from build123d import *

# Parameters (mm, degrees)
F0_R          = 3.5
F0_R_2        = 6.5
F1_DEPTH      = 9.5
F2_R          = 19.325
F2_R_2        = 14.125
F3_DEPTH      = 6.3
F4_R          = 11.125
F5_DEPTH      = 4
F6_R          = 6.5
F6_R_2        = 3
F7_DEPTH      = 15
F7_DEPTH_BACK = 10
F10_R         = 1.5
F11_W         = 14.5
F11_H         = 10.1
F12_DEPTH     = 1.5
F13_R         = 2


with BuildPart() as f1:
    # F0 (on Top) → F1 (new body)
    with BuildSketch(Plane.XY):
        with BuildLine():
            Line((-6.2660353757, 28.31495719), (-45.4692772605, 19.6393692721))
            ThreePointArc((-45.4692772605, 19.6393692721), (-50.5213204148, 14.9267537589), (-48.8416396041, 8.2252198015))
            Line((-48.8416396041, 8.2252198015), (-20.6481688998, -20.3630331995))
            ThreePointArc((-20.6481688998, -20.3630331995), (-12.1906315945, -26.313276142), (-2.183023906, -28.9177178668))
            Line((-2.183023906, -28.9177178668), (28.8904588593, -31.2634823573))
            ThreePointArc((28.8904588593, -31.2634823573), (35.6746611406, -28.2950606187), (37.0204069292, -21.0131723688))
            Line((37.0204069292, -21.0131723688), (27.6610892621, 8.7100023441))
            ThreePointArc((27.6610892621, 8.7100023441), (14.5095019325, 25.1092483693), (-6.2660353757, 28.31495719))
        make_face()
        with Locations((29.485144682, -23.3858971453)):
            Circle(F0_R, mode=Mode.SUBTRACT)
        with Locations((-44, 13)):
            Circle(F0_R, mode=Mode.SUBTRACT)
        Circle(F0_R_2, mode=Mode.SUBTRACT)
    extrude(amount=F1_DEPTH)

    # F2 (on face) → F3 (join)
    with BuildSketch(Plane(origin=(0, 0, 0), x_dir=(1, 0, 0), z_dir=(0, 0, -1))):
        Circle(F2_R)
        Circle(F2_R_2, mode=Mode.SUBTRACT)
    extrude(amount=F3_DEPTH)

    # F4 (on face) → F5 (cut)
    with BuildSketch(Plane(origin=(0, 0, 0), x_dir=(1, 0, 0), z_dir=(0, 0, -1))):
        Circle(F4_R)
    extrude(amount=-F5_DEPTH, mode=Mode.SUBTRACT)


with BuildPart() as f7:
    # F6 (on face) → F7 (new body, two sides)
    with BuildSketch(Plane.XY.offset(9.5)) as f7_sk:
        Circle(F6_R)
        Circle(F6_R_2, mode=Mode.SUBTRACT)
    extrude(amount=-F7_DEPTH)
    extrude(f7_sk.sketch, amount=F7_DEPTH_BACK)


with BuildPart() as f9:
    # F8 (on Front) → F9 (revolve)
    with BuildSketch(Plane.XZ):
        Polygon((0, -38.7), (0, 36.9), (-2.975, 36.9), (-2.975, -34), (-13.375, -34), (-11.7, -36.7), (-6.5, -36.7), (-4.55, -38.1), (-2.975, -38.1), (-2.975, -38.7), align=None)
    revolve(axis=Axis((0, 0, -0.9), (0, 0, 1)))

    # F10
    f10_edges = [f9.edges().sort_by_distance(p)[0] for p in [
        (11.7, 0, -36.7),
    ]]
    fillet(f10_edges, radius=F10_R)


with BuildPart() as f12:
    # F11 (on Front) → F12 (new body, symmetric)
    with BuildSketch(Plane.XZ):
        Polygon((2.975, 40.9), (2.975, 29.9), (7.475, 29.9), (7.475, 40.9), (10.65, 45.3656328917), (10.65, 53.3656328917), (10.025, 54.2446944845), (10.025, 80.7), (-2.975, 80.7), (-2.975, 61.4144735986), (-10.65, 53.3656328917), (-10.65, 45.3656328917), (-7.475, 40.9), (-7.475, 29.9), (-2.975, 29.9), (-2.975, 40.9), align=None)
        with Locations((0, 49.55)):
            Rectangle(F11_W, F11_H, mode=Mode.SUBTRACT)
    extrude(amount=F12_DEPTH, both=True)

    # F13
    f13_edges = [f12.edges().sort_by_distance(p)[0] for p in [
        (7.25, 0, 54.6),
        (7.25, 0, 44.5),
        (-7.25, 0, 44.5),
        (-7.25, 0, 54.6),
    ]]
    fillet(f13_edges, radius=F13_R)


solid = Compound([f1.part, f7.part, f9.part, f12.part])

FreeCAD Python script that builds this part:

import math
import FreeCAD as App
import Part
import Sketcher

V = App.Vector
Q = App.Units.Quantity


def edges_at(feature, points):
    """Names of the edges that pass closest to the given points."""
    edges = feature.Shape.Edges
    near = lambda p: min(range(len(edges)), key=lambda i: edges[i].distToShape(Part.Vertex(*p))[0])
    return sorted({f"Edge{near(p) + 1}" for p in points})


def add_polygon(sketch, points):
    """Adds a closed chain of lines whose ends are joined by coincident constraints."""
    first, n = sketch.GeometryCount, len(points)
    for a, b in zip(points, points[1:] + points[:1]):
        sketch.addGeometry(Part.LineSegment(App.Vector(*a, 0), App.Vector(*b, 0)), False)
    for i in range(n):
        sketch.addConstraint(Sketcher.Constraint("Coincident", first + i, 2, first + (i + 1) % n, 1))

doc = App.newDocument("Part")
params = doc.addObject("Spreadsheet::Sheet", "Params")
for row, (alias, value) in enumerate([
    ("sketch1_diameter", "7 mm"),
    ("sketch1_diameter2", "13 mm"),
    ("sketch1_radius", "29 mm"),
    ("sketch1_radius2", "6.8 mm"),
    ("sketch1_radius3", "7.9 mm"),
    ("pad1_length", "9.5 mm"),
    ("sketch2_diameter", "38.65 mm"),
    ("sketch2_diameter2", "28.25 mm"),
    ("pad2_length", "6.3 mm"),
    ("sketch3_diameter", "22.25 mm"),
    ("pocket1_length", "4 mm"),
    ("sketch4_diameter", "13 mm"),
    ("sketch4_diameter2", "6 mm"),
    ("pad3_length", "15 mm"),
    ("pad3_length2", "10 mm"),
    ("sketch5_width", "10.4 mm"),
    ("sketch5_width2", "5.2 mm"),
    ("sketch5_height", "75.6 mm"),
    ("sketch5_height2", "70.9 mm"),
    ("sketch5_height3", "0.6 mm"),
    ("revolution_angle", "360 deg"),
    ("fillet_radius", "1.5 mm"),
    ("sketch6_width", "13 mm"),
    ("sketch6_height", "11 mm"),
    ("sketch6_height2", "8 mm"),
    ("sketch6_width2", "4.5 mm"),
    ("sketch6_width3", "14.5 mm"),
    ("pad4_length", "3 mm"),
    ("fillet2_radius", "2 mm"),
], start=1):
    params.set(f"A{row}", alias)
    params.set(f"B{row}", "=" + value)
    params.setAlias(f"B{row}", alias)

body = doc.addObject("PartDesign::Body", "Body")

# Sketch on XY plane
sketch1 = body.newObject("Sketcher::SketchObject", "Sketch")
sketch1.AttachmentSupport = (doc.getObject("XY_Plane"), [""])
sketch1.MapMode = "FlatFace"
sketch1.addGeometry(Part.LineSegment(V(-6.3, 28.3, 0), V(-45.5, 19.6, 0)), False)
sketch1.addGeometry(Part.ArcOfCircle(Part.Circle(V(-44, 13, 0), V(0, 0, 1), 6.8), math.radians(102), math.radians(225)), False)
sketch1.addGeometry(Part.LineSegment(V(-48.8, 8.2, 0), V(-20.6, -20.4, 0)), False)
sketch1.addGeometry(Part.ArcOfCircle(Part.Circle(V(0, 0, 0), V(0, 0, 1), 29), math.radians(-135), math.radians(-94)), False)
sketch1.addGeometry(Part.LineSegment(V(-2.2, -28.9, 0), V(28.9, -31.3, 0)), False)
sketch1.addGeometry(Part.ArcOfCircle(Part.Circle(V(29.5, -23.4, 0), V(0, 0, 1), 7.9), math.radians(-94), math.radians(17)), False)
sketch1.addGeometry(Part.LineSegment(V(37, -21, 0), V(27.7, 8.7, 0)), False)
sketch1.addGeometry(Part.ArcOfCircle(Part.Circle(V(0, 0, 0), V(0, 0, 1), 29), math.radians(17), math.radians(102)), False)
sketch1.addGeometry(Part.Circle(V(29.5, -23.4, 0), V(0, 0, 1), 3.5), False)
sketch1.addGeometry(Part.Circle(V(-44, 13, 0), V(0, 0, 1), 3.5), False)
sketch1.addGeometry(Part.Circle(V(0, 0, 0), V(0, 0, 1), 6.5), False)
sketch1.addConstraint(Sketcher.Constraint("Tangent", 0, 2, 1, 1))
sketch1.addConstraint(Sketcher.Constraint("Tangent", 1, 2, 2, 1))
sketch1.addConstraint(Sketcher.Constraint("Tangent", 2, 2, 3, 1))
sketch1.addConstraint(Sketcher.Constraint("Tangent", 3, 2, 4, 1))
sketch1.addConstraint(Sketcher.Constraint("Tangent", 4, 2, 5, 1))
sketch1.addConstraint(Sketcher.Constraint("Tangent", 5, 2, 6, 1))
sketch1.addConstraint(Sketcher.Constraint("Tangent", 6, 2, 7, 1))
sketch1.addConstraint(Sketcher.Constraint("Tangent", 7, 2, 0, 1))
sketch1.addConstraint(Sketcher.Constraint("Coincident", 3, 3, -1, 1))
sketch1.addConstraint(Sketcher.Constraint("Coincident", 7, 3, -1, 1))
sketch1.addConstraint(Sketcher.Constraint("Coincident", 10, 3, -1, 1))
sketch1.addConstraint(Sketcher.Constraint("Coincident", 8, 3, 5, 3))
sketch1.addConstraint(Sketcher.Constraint("Coincident", 9, 3, 1, 3))
sketch1.addConstraint(Sketcher.Constraint("Equal", 3, 7))
sketch1.addConstraint(Sketcher.Constraint("Equal", 8, 9))
sketch1.addConstraint(Sketcher.Constraint("Diameter", 8, Q("7 mm")))
sketch1.addConstraint(Sketcher.Constraint("Diameter", 10, Q("13 mm")))
sketch1.addConstraint(Sketcher.Constraint("Radius", 3, Q("29 mm")))
sketch1.addConstraint(Sketcher.Constraint("Radius", 1, Q("6.8 mm")))
sketch1.addConstraint(Sketcher.Constraint("Radius", 5, Q("7.9 mm")))
sketch1.addConstraint(Sketcher.Constraint("DistanceX", 1, 3, -1, 1, Q("44 mm")))
sketch1.addConstraint(Sketcher.Constraint("DistanceY", -1, 1, 1, 3, Q("13 mm")))
sketch1.addConstraint(Sketcher.Constraint("Distance", 4, Q("31.161899 mm")))
sketch1.addConstraint(Sketcher.Constraint("DistanceY", 5, 3, 6, 2, Q("32.095899 mm")))
sketch1.setExpression("Constraints[15]", "Params.sketch1_diameter")
sketch1.setExpression("Constraints[16]", "Params.sketch1_diameter2")
sketch1.setExpression("Constraints[17]", "Params.sketch1_radius")
sketch1.setExpression("Constraints[18]", "Params.sketch1_radius2")
sketch1.setExpression("Constraints[19]", "Params.sketch1_radius3")
pad1 = body.newObject("PartDesign::Pad", "Pad")
pad1.Profile = sketch1
pad1.setExpression("Length", "Params.pad1_length")

# Sketch on XY plane
sketch2 = body.newObject("Sketcher::SketchObject", "Sketch001")
sketch2.AttachmentSupport = (doc.getObject("XY_Plane"), [""])
sketch2.MapMode = "FlatFace"
sketch2.addGeometry(Part.Circle(V(0, 0, 0), V(0, 0, 1), 19), False)
sketch2.addGeometry(Part.Circle(V(0, 0, 0), V(0, 0, 1), 14), False)
sketch2.addConstraint(Sketcher.Constraint("Coincident", 0, 3, -1, 1))
sketch2.addConstraint(Sketcher.Constraint("Coincident", 1, 3, -1, 1))
sketch2.addConstraint(Sketcher.Constraint("Diameter", 0, Q("38.65 mm")))
sketch2.addConstraint(Sketcher.Constraint("Diameter", 1, Q("28.25 mm")))
sketch2.setExpression("Constraints[2]", "Params.sketch2_diameter")
sketch2.setExpression("Constraints[3]", "Params.sketch2_diameter2")
pad2 = body.newObject("PartDesign::Pad", "Pad001")
pad2.Profile = sketch2
pad2.setExpression("Length", "Params.pad2_length")
pad2.Reversed = True

# Sketch on XY plane
sketch3 = body.newObject("Sketcher::SketchObject", "Sketch002")
sketch3.AttachmentSupport = (doc.getObject("XY_Plane"), [""])
sketch3.MapMode = "FlatFace"
sketch3.addGeometry(Part.Circle(V(0, 0, 0), V(0, 0, 1), 11), False)
sketch3.addConstraint(Sketcher.Constraint("Coincident", 0, 3, -1, 1))
sketch3.addConstraint(Sketcher.Constraint("Diameter", 0, Q("22.25 mm")))
sketch3.setExpression("Constraints[1]", "Params.sketch3_diameter")
pocket1 = body.newObject("PartDesign::Pocket", "Pocket")
pocket1.Profile = sketch3
pocket1.setExpression("Length", "Params.pocket1_length")
pocket1.Reversed = True
body2 = doc.addObject("PartDesign::Body", "Body001")

# Sketch on XY plane
sketch4 = body2.newObject("Sketcher::SketchObject", "Sketch003")
sketch4.AttachmentSupport = (doc.getObject("XY_Plane001"), [""])
sketch4.MapMode = "FlatFace"
sketch4.AttachmentOffset = App.Placement(V(0, 0, 9.5), App.Rotation())
sketch4.addGeometry(Part.Circle(V(0, 0, 0), V(0, 0, 1), 6.5), False)
sketch4.addGeometry(Part.Circle(V(0, 0, 0), V(0, 0, 1), 3), False)
sketch4.addConstraint(Sketcher.Constraint("Coincident", 0, 3, -1, 1))
sketch4.addConstraint(Sketcher.Constraint("Coincident", 1, 3, -1, 1))
sketch4.addConstraint(Sketcher.Constraint("Diameter", 0, Q("13 mm")))
sketch4.addConstraint(Sketcher.Constraint("Diameter", 1, Q("6 mm")))
sketch4.setExpression("Constraints[2]", "Params.sketch4_diameter")
sketch4.setExpression("Constraints[3]", "Params.sketch4_diameter2")
pad3 = body2.newObject("PartDesign::Pad", "Pad002")
pad3.Profile = sketch4
pad3.Type = "TwoLengths"
pad3.setExpression("Length", "Params.pad3_length")
pad3.setExpression("Length2", "Params.pad3_length2")
pad3.Reversed = True
body3 = doc.addObject("PartDesign::Body", "Body002")

# Sketch on XZ plane
sketch5 = body3.newObject("Sketcher::SketchObject", "Sketch004")
sketch5.AttachmentSupport = (doc.getObject("XZ_Plane002"), [""])
sketch5.MapMode = "FlatFace"
add_polygon(sketch5, [(0, -38.7), (0, 36.9), (-3, 36.9), (-3, -34), (-13.4, -34), (-11.7, -36.7), (-6.5, -36.7), (-4.5, -38.1), (-3, -38.1), (-3, -38.7)])  # lines 0-9
sketch5.addConstraint(Sketcher.Constraint("Vertical", 0))
sketch5.addConstraint(Sketcher.Constraint("Horizontal", 1))
sketch5.addConstraint(Sketcher.Constraint("Vertical", 2))
sketch5.addConstraint(Sketcher.Constraint("Horizontal", 3))
sketch5.addConstraint(Sketcher.Constraint("Horizontal", 5))
sketch5.addConstraint(Sketcher.Constraint("Horizontal", 7))
sketch5.addConstraint(Sketcher.Constraint("Vertical", 8))
sketch5.addConstraint(Sketcher.Constraint("Horizontal", 9))
sketch5.addConstraint(Sketcher.Constraint("PointOnObject", 0, 2, -2))
sketch5.addConstraint(Sketcher.Constraint("Vertical", 2, 2, 7, 2))
sketch5.addConstraint(Sketcher.Constraint("DistanceX", 3, 2, 3, 1, Q("10.4 mm")))
sketch5.addConstraint(Sketcher.Constraint("DistanceX", 5, 1, 5, 2, Q("5.2 mm")))
sketch5.addConstraint(Sketcher.Constraint("DistanceY", 0, 1, 0, 2, Q("75.6 mm")))
sketch5.addConstraint(Sketcher.Constraint("DistanceY", 2, 2, 2, 1, Q("70.9 mm")))
sketch5.addConstraint(Sketcher.Constraint("DistanceY", 8, 2, 8, 1, Q("0.6 mm")))
sketch5.addConstraint(Sketcher.Constraint("DistanceY", 2, 2, -1, 1, Q("34 mm")))
sketch5.addConstraint(Sketcher.Constraint("DistanceY", 8, 2, 5, 2, Q("2 mm")))
sketch5.addConstraint(Sketcher.Constraint("DistanceX", 4, 2, -1, 1, Q("11.7 mm")))
sketch5.addConstraint(Sketcher.Constraint("DistanceX", 1, 2, 1, 1, Q("2.975 mm")))
sketch5.addConstraint(Sketcher.Constraint("DistanceX", 7, 1, 7, 2, Q("1.575 mm")))
sketch5.setExpression("Constraints[20]", "Params.sketch5_width")
sketch5.setExpression("Constraints[21]", "Params.sketch5_width2")
sketch5.setExpression("Constraints[22]", "Params.sketch5_height")
sketch5.setExpression("Constraints[23]", "Params.sketch5_height2")
sketch5.setExpression("Constraints[24]", "Params.sketch5_height3")
revolution = body3.newObject("PartDesign::Revolution", "Revolution")
revolution.Profile = sketch5
revolution.ReferenceAxis = (sketch5, ["V_Axis"])
revolution.setExpression("Angle", "Params.revolution_angle")
doc.recompute()

fillet = body3.newObject("PartDesign::Fillet", "Fillet")
fillet.Base = (revolution, edges_at(revolution, [(11.7, 0, -36.7)]))
fillet.setExpression("Radius", "Params.fillet_radius")
body4 = doc.addObject("PartDesign::Body", "Body003")

# Sketch on XZ plane
sketch6 = body4.newObject("Sketcher::SketchObject", "Sketch005")
sketch6.AttachmentSupport = (doc.getObject("XZ_Plane003"), [""])
sketch6.MapMode = "FlatFace"
add_polygon(sketch6, [(3, 40.9), (3, 29.9), (7.5, 29.9), (7.5, 40.9), (10.7, 45.4), (10.7, 53.4), (10, 54.2), (10, 80.7), (-3, 80.7), (-3, 61.4), (-10.7, 53.4), (-10.7, 45.4), (-7.5, 40.9), (-7.5, 29.9), (-3, 29.9), (-3, 40.9)])  # lines 0-15
add_polygon(sketch6, [(7.2, 44.5), (-7.2, 44.5), (-7.2, 54.6), (7.2, 54.6)])  # lines 16-19
sketch6.addConstraint(Sketcher.Constraint("Vertical", 0))
sketch6.addConstraint(Sketcher.Constraint("Horizontal", 1))
sketch6.addConstraint(Sketcher.Constraint("Vertical", 2))
sketch6.addConstraint(Sketcher.Constraint("Vertical", 4))
sketch6.addConstraint(Sketcher.Constraint("Vertical", 6))
sketch6.addConstraint(Sketcher.Constraint("Horizontal", 7))
sketch6.addConstraint(Sketcher.Constraint("Vertical", 8))
sketch6.addConstraint(Sketcher.Constraint("Vertical", 10))
sketch6.addConstraint(Sketcher.Constraint("Vertical", 12))
sketch6.addConstraint(Sketcher.Constraint("Horizontal", 13))
sketch6.addConstraint(Sketcher.Constraint("Vertical", 14))
sketch6.addConstraint(Sketcher.Constraint("Horizontal", 15))
sketch6.addConstraint(Sketcher.Constraint("Horizontal", 16))
sketch6.addConstraint(Sketcher.Constraint("Vertical", 17))
sketch6.addConstraint(Sketcher.Constraint("Horizontal", 18))
sketch6.addConstraint(Sketcher.Constraint("Vertical", 19))
sketch6.addConstraint(Sketcher.Constraint("Symmetric", 4, 2, 9, 2, -2))
sketch6.addConstraint(Sketcher.Constraint("Symmetric", 2, 2, 11, 2, -2))
sketch6.addConstraint(Sketcher.Constraint("Symmetric", 0, 2, 13, 2, -2))
sketch6.addConstraint(Sketcher.Constraint("Parallel", 5, 11))
sketch6.addConstraint(Sketcher.Constraint("Horizontal", 3, 2, 10, 2))
sketch6.addConstraint(Sketcher.Constraint("Horizontal", 11, 2, 14, 2))
sketch6.addConstraint(Sketcher.Constraint("Vertical", 8, 2, 13, 2))
sketch6.addConstraint(Sketcher.Constraint("DistanceX", 7, 2, 7, 1, Q("13 mm")))
sketch6.addConstraint(Sketcher.Constraint("DistanceY", 0, 2, 0, 1, Q("11 mm")))
sketch6.addConstraint(Sketcher.Constraint("DistanceY", 4, 1, 4, 2, Q("8 mm")))
sketch6.addConstraint(Sketcher.Constraint("DistanceX", 1, 1, 1, 2, Q("4.5 mm")))
sketch6.addConstraint(Sketcher.Constraint("DistanceX", 16, 2, 16, 1, Q("14.5 mm")))
sketch6.addConstraint(Sketcher.Constraint("DistanceY", 17, 1, 17, 2, Q("10.1 mm")))
sketch6.addConstraint(Sketcher.Constraint("DistanceX", 15, 1, 15, 2, Q("5.95 mm")))
sketch6.addConstraint(Sketcher.Constraint("DistanceY", -1, 1, 0, 2, Q("29.9 mm")))
sketch6.addConstraint(Sketcher.Constraint("DistanceY", -1, 1, 6, 2, Q("80.7 mm")))
sketch6.addConstraint(Sketcher.Constraint("DistanceY", -1, 1, 16, 2, Q("44.5 mm")))
sketch6.addConstraint(Sketcher.Constraint("DistanceX", 9, 2, 4, 2, Q("21.3 mm")))
sketch6.addConstraint(Sketcher.Constraint("DistanceX", 10, 2, 16, 2, Q("3.4 mm")))
sketch6.addConstraint(Sketcher.Constraint("Distance", 5, Q("1.078598 mm")))
sketch6.addConstraint(Sketcher.Constraint("DistanceY", 8, 2, 8, 1, Q("19.285526 mm")))
sketch6.setExpression("Constraints[43]", "Params.sketch6_width")
sketch6.setExpression("Constraints[44]", "Params.sketch6_height")
sketch6.setExpression("Constraints[45]", "Params.sketch6_height2")
sketch6.setExpression("Constraints[46]", "Params.sketch6_width2")
sketch6.setExpression("Constraints[47]", "Params.sketch6_width3")
pad4 = body4.newObject("PartDesign::Pad", "Pad003")
pad4.Profile = sketch6
pad4.setExpression("Length", "Params.pad4_length")
pad4.Midplane = True
doc.recompute()

fillet2 = body4.newObject("PartDesign::Fillet", "Fillet001")
fillet2.Base = (pad4, edges_at(pad4, [
    (7.25, 0, 54.6),
    (7.25, 0, 44.5),
    (-7.25, 0, 44.5),
    (-7.25, 0, 54.6),
]))
fillet2.setExpression("Radius", "Params.fillet2_radius")

doc.recompute()
